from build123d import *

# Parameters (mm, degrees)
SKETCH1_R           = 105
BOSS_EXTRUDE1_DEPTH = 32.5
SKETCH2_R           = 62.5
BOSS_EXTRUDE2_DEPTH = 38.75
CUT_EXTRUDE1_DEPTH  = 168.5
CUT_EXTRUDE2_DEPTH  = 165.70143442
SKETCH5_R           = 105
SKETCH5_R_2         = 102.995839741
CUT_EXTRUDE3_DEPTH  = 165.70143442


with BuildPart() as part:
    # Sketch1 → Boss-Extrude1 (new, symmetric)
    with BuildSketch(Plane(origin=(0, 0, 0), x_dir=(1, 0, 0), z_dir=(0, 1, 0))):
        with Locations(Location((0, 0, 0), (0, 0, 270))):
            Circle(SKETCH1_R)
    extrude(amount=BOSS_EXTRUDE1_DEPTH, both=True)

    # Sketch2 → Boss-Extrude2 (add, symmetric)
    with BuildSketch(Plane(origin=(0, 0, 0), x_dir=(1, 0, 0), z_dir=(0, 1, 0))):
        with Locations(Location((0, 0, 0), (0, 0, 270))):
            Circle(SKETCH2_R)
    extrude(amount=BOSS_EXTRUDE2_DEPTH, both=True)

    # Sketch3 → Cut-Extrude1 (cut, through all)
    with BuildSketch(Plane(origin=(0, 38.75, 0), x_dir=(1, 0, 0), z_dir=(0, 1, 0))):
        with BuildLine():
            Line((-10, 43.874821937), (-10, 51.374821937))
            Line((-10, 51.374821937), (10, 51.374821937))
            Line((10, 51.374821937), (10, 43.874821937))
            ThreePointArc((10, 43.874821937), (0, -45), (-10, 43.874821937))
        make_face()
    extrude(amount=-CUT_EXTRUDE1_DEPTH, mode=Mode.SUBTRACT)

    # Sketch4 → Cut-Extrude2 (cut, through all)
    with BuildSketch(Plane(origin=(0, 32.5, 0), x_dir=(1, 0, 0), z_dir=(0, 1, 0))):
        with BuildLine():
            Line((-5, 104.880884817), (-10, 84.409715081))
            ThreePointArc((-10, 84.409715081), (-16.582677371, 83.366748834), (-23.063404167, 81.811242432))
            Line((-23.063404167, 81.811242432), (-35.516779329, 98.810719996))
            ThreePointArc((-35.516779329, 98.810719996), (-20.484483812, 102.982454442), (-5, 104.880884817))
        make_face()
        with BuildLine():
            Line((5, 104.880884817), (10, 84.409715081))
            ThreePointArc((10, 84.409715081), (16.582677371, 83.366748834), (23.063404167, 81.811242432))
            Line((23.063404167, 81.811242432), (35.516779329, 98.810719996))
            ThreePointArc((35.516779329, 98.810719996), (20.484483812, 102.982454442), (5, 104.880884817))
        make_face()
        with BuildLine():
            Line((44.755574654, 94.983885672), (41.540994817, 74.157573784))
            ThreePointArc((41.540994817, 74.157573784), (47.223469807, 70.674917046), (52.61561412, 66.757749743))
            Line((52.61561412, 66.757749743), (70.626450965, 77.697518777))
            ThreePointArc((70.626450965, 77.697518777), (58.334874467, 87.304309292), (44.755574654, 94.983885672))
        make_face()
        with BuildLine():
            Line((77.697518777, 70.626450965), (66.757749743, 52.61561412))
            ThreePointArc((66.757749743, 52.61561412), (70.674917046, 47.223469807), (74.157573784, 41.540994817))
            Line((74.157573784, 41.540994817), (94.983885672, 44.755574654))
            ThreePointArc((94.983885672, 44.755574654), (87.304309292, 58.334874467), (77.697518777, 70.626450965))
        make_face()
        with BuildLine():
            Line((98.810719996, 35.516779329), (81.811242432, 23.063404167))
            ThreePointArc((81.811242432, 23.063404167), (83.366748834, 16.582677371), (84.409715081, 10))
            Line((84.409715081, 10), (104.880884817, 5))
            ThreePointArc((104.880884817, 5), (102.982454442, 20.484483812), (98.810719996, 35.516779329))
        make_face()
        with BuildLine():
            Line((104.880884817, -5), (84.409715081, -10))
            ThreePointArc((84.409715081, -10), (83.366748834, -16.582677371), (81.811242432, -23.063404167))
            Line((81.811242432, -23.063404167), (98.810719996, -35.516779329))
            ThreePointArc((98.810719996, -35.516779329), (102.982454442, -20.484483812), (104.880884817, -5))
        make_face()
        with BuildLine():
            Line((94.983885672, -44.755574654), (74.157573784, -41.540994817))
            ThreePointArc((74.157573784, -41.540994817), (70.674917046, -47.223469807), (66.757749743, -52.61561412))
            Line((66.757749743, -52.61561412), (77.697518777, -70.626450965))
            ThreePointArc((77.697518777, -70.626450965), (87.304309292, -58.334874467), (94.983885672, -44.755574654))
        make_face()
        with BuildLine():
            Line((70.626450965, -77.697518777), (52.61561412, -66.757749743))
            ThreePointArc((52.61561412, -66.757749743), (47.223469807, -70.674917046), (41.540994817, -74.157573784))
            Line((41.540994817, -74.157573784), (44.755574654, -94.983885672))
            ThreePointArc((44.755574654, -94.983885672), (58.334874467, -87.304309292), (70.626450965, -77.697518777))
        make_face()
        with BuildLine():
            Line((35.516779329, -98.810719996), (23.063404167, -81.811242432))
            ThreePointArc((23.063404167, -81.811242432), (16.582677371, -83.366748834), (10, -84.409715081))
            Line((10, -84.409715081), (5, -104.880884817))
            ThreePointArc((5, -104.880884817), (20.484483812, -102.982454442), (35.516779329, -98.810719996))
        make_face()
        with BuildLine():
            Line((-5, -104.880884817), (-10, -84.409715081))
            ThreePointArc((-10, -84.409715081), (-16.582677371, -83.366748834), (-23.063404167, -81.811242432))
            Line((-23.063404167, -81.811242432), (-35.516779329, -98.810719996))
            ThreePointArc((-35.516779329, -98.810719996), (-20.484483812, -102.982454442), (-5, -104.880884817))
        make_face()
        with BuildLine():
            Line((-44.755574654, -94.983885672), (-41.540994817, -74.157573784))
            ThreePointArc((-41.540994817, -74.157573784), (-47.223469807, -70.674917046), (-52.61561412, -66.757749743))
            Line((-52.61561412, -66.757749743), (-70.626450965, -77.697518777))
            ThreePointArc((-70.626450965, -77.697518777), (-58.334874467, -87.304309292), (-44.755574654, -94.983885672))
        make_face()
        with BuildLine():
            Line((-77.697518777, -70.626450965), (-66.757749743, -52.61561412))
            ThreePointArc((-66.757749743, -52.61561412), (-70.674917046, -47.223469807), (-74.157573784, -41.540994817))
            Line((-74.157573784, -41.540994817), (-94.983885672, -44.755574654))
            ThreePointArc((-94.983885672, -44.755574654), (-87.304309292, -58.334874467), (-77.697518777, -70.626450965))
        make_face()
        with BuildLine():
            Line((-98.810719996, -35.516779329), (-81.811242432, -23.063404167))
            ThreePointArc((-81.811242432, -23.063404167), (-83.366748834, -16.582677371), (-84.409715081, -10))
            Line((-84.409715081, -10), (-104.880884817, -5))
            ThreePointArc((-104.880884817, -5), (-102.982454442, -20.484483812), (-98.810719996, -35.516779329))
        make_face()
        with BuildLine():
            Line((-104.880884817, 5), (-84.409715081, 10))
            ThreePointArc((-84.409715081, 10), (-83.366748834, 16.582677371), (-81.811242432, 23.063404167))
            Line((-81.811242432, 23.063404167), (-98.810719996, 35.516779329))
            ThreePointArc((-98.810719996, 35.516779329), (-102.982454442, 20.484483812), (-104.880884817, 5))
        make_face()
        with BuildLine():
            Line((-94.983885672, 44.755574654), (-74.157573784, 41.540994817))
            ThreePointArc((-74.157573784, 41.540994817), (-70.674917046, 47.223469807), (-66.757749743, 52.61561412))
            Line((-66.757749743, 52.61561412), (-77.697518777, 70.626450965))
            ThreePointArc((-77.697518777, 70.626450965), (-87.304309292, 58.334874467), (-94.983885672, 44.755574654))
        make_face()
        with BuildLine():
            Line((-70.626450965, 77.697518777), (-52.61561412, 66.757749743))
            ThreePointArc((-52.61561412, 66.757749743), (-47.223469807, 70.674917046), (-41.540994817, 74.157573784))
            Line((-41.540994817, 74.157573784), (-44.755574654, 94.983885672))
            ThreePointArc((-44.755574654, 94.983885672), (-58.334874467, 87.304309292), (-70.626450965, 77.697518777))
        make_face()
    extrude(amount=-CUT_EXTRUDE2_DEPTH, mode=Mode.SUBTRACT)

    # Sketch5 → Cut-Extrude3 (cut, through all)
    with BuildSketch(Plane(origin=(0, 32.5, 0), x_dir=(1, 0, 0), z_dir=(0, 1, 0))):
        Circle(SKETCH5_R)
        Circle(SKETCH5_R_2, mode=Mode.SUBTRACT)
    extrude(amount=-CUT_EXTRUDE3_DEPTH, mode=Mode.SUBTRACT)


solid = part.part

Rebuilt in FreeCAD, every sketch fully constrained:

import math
import FreeCAD as App
import Part
import Sketcher
from FreeCAD import Vector
Q = App.Units.Quantity

doc = App.newDocument("Part")
body = doc.addObject("PartDesign::Body", "Body")

# Sketch on XZ plane
sketch1 = body.newObject("Sketcher::SketchObject", "Sketch")
sketch1.AttachmentSupport = (doc.getObject("XZ_Plane"), [""])
sketch1.MapMode = "FlatFace"
sketch1.addGeometry(Part.Circle(Vector(0, 0, 0), Vector(0, 0, 1), 105), False)
sketch1.addConstraint(Sketcher.Constraint("Coincident", 0, 3, -1, 1))
sketch1.addConstraint(Sketcher.Constraint("Diameter", 0, Q("210 mm")))
pad1 = body.newObject("PartDesign::Pad", "Pad")
pad1.Profile = sketch1
pad1.Length = 65
pad1.Midplane = True

# Sketch on XZ plane
sketch2 = body.newObject("Sketcher::SketchObject", "Sketch001")
sketch2.AttachmentSupport = (doc.getObject("XZ_Plane"), [""])
sketch2.MapMode = "FlatFace"
sketch2.addGeometry(Part.Circle(Vector(0, 0, 0), Vector(0, 0, 1), 62), False)
sketch2.addConstraint(Sketcher.Constraint("Coincident", 0, 3, -1, 1))
sketch2.addConstraint(Sketcher.Constraint("Diameter", 0, Q("125 mm")))
pad2 = body.newObject("PartDesign::Pad", "Pad001")
pad2.Profile = sketch2
pad2.Length = 77.5
pad2.Midplane = True

# Sketch on XZ plane
sketch3 = body.newObject("Sketcher::SketchObject", "Sketch002")
sketch3.AttachmentSupport = (doc.getObject("XZ_Plane"), [""])
sketch3.MapMode = "FlatFace"
sketch3.AttachmentOffset = App.Placement(Vector(0, 0, -38.75), App.Rotation())
sketch3.addGeometry(Part.LineSegment(Vector(-10, -51, 0), Vector(-10, -44, 0)), False)
sketch3.addGeometry(Part.ArcOfCircle(Part.Circle(Vector(0, 0, 0), Vector(0, 0, 1), 45), math.radians(-77), math.radians(257)), False)
sketch3.addGeometry(Part.LineSegment(Vector(10, -44, 0), Vector(10, -51, 0)), False)
sketch3.addGeometry(Part.LineSegment(Vector(10, -51, 0), Vector(-10, -51, 0)), False)
sketch3.addConstraint(Sketcher.Constraint("Coincident", 0, 2, 1, 2))
sketch3.addConstraint(Sketcher.Constraint("Coincident", 1, 1, 2, 1))
sketch3.addConstraint(Sketcher.Constraint("Coincident", 2, 2, 3, 1))
sketch3.addConstraint(Sketcher.Constraint("Coincident", 3, 2, 0, 1))
sketch3.addConstraint(Sketcher.Constraint("Vertical", 0))
sketch3.addConstraint(Sketcher.Constraint("Vertical", 2))
sketch3.addConstraint(Sketcher.Constraint("Horizontal", 3))
sketch3.addConstraint(Sketcher.Constraint("Coincident", 1, 3, -1, 1))
sketch3.addConstraint(Sketcher.Constraint("Horizontal", 0, 2, 1, 1))
sketch3.addConstraint(Sketcher.Constraint("Radius", 1, Q("45 mm")))
sketch3.addConstraint(Sketcher.Constraint("DistanceX", 3, 2, 3, 1, Q("20 mm")))
sketch3.addConstraint(Sketcher.Constraint("DistanceY", 0, 1, 0, 2, Q("7.5 mm")))
pocket1 = body.newObject("PartDesign::Pocket", "Pocket")
pocket1.Profile = sketch3
pocket1.Type = "ThroughAll"
pocket1.Reversed = True

# Sketch on XZ plane
sketch4 = body.newObject("Sketcher::SketchObject", "Sketch003")
sketch4.AttachmentSupport = (doc.getObject("XZ_Plane"), [""])
sketch4.MapMode = "FlatFace"
sketch4.AttachmentOffset = App.Placement(Vector(0, 0, -32.5), App.Rotation())
sketch4.addGeometry(Part.LineSegment(Vector(-10, -84, 0), Vector(-5, -105, 0)), False)
sketch4.addGeometry(Part.ArcOfCircle(Part.Circle(Vector(0, 0, 0), Vector(0, 0, 1), 105), math.radians(-109.77), math.radians(-92.73)), False)
sketch4.addGeometry(Part.LineSegment(Vector(-36, -99, 0), Vector(-23, -82, 0)), False)
sketch4.addGeometry(Part.ArcOfCircle(Part.Circle(Vector(0, 0, 0), Vector(0, 0, 1), 85), math.radians(-105.74), math.radians(-96.76)), False)
sketch4.addGeometry(Part.LineSegment(Vector(5, -105, 0), Vector(10, -84, 0)), False)
sketch4.addGeometry(Part.ArcOfCircle(Part.Circle(Vector(0, 0, 0), Vector(0, 0, 1), 85), math.radians(-83.24), math.radians(-74.26)), False)
sketch4.addGeometry(Part.LineSegment(Vector(23, -82, 0), Vector(36, -99, 0)), False)
sketch4.addGeometry(Part.ArcOfCircle(Part.Circle(Vector(0, 0, 0), Vector(0, 0, 1), 105), math.radians(-87.27), math.radians(-70.23)), False)
sketch4.addGeometry(Part.LineSegment(Vector(45, -95, 0), Vector(42, -74, 0)), False)
sketch4.addGeometry(Part.ArcOfCircle(Part.Circle(Vector(0, 0, 0), Vector(0, 0, 1), 85), math.radians(-60.74), math.radians(-51.76)), False)
sketch4.addGeometry(Part.LineSegment(Vector(53, -67, 0), Vector(71, -78, 0)), False)
sketch4.addGeometry(Part.ArcOfCircle(Part.Circle(Vector(0, 0, 0), Vector(0, 0, 1), 105), math.radians(-64.77), math.radians(-47.73)), False)
sketch4.addGeometry(Part.LineSegment(Vector(78, -71, 0), Vector(67, -53, 0)), False)
sketch4.addGeometry(Part.ArcOfCircle(Part.Circle(Vector(0, 0, 0), Vector(0, 0, 1), 85), math.radians(-38.24), math.radians(-29.26)), False)
sketch4.addGeometry(Part.LineSegment(Vector(74, -42, 0), Vector(95, -45, 0)), False)
sketch4.addGeometry(Part.ArcOfCircle(Part.Circle(Vector(0, 0, 0), Vector(0, 0, 1), 105), math.radians(-42.27), math.radians(-25.23)), False)
sketch4.addGeometry(Part.LineSegment(Vector(99, -36, 0), Vector(82, -23, 0)), False)
sketch4.addGeometry(Part.ArcOfCircle(Part.Circle(Vector(0, 0, 0), Vector(0, 0, 1), 85), math.radians(-15.74), math.radians(-6.76)), False)
sketch4.addGeometry(Part.LineSegment(Vector(84, -10, 0), Vector(105, -5, 0)), False)
sketch4.addGeometry(Part.ArcOfCircle(Part.Circle(Vector(0, 0, 0), Vector(0, 0, 1), 105), math.radians(-19.77), math.radians(-2.73)), False)
sketch4.addGeometry(Part.LineSegment(Vector(105, 5, 0), Vector(84, 10, 0)), False)
sketch4.addGeometry(Part.ArcOfCircle(Part.Circle(Vector(0, 0, 0), Vector(0, 0, 1), 85), math.radians(6.76), math.radians(15.74)), False)
sketch4.addGeometry(Part.LineSegment(Vector(82, 23, 0), Vector(99, 36, 0)), False)
sketch4.addGeometry(Part.ArcOfCircle(Part.Circle(Vector(0, 0, 0), Vector(0, 0, 1), 105), math.radians(2.73), math.radians(19.77)), False)
sketch4.addGeometry(Part.LineSegment(Vector(95, 45, 0), Vector(74, 42, 0)), False)
sketch4.addGeometry(Part.ArcOfCircle(Part.Circle(Vector(0, 0, 0), Vector(0, 0, 1), 85), math.radians(29.26), math.radians(38.24)), False)
sketch4.addGeometry(Part.LineSegment(Vector(67, 53, 0), Vector(78, 71, 0)), False)
sketch4.addGeometry(Part.ArcOfCircle(Part.Circle(Vector(0, 0, 0), Vector(0, 0, 1), 105), math.radians(25.23), math.radians(42.27)), False)
sketch4.addGeometry(Part.LineSegment(Vector(71, 78, 0), Vector(53, 67, 0)), False)
sketch4.addGeometry(Part.ArcOfCircle(Part.Circle(Vector(0, 0, 0), Vector(0, 0, 1), 85), math.radians(51.76), math.radians(60.74)), False)
sketch4.addGeometry(Part.LineSegment(Vector(42, 74, 0), Vector(45, 95, 0)), False)
sketch4.addGeometry(Part.ArcOfCircle(Part.Circle(Vector(0, 0, 0), Vector(0, 0, 1), 105), math.radians(47.73), math.radians(64.77)), False)
sketch4.addGeometry(Part.LineSegment(Vector(36, 99, 0), Vector(23, 82, 0)), False)
sketch4.addGeometry(Part.ArcOfCircle(Part.Circle(Vector(0, 0, 0), Vector(0, 0, 1), 85), math.radians(74.26), math.radians(83.24)), False)
sketch4.addGeometry(Part.LineSegment(Vector(10, 84, 0), Vector(5, 105, 0)), False)
sketch4.addGeometry(Part.ArcOfCircle(Part.Circle(Vector(0, 0, 0), Vector(0, 0, 1), 105), math.radians(70.23), math.radians(87.27)), False)
sketch4.addGeometry(Part.LineSegment(Vector(-5, 105, 0), Vector(-10, 84, 0)), False)
sketch4.addGeometry(Part.ArcOfCircle(Part.Circle(Vector(0, 0, 0), Vector(0, 0, 1), 85), math.radians(96.76), math.radians(105.74)), False)
sketch4.addGeometry(Part.LineSegment(Vector(-23, 82, 0), Vector(-36, 99, 0)), False)
sketch4.addGeometry(Part.ArcOfCircle(Part.Circle(Vector(0, 0, 0), Vector(0, 0, 1), 105), math.radians(92.73), math.radians(109.77)), False)
sketch4.addGeometry(Part.LineSegment(Vector(-45, 95, 0), Vector(-42, 74, 0)), False)
sketch4.addGeometry(Part.ArcOfCircle(Part.Circle(Vector(0, 0, 0), Vector(0, 0, 1), 85), math.radians(119.26), math.radians(128.24)), False)
sketch4.addGeometry(Part.LineSegment(Vector(-53, 67, 0), Vector(-71, 78, 0)), False)
sketch4.addGeometry(Part.ArcOfCircle(Part.Circle(Vector(0, 0, 0), Vector(0, 0, 1), 105), math.radians(115.23), math.radians(132.27)), False)
sketch4.addGeometry(Part.LineSegment(Vector(-78, 71, 0), Vector(-67, 53, 0)), False)
sketch4.addGeometry(Part.ArcOfCircle(Part.Circle(Vector(0, 0, 0), Vector(0, 0, 1), 85), math.radians(141.76), math.radians(150.74)), False)
sketch4.addGeometry(Part.LineSegment(Vector(-74, 42, 0), Vector(-95, 45, 0)), False)
sketch4.addGeometry(Part.ArcOfCircle(Part.Circle(Vector(0, 0, 0), Vector(0, 0, 1), 105), math.radians(137.73), math.radians(154.77)), False)
sketch4.addGeometry(Part.LineSegment(Vector(-99, 36, 0), Vector(-82, 23, 0)), False)
sketch4.addGeometry(Part.ArcOfCircle(Part.Circle(Vector(0, 0, 0), Vector(0, 0, 1), 85), math.radians(164.26), math.radians(173.24)), False)
sketch4.addGeometry(Part.LineSegment(Vector(-84, 10, 0), Vector(-105, 5, 0)), False)
sketch4.addGeometry(Part.ArcOfCircle(Part.Circle(Vector(0, 0, 0), Vector(0, 0, 1), 105), math.radians(160.23), math.radians(177.27)), False)
sketch4.addGeometry(Part.LineSegment(Vector(-105, -5, 0), Vector(-84, -10, 0)), False)
sketch4.addGeometry(Part.ArcOfCircle(Part.Circle(Vector(0, 0, 0), Vector(0, 0, 1), 85), math.radians(-173.24), math.radians(-164.26)), False)
sketch4.addGeometry(Part.LineSegment(Vector(-82, -23, 0), Vector(-99, -36, 0)), False)
sketch4.addGeometry(Part.ArcOfCircle(Part.Circle(Vector(0, 0, 0), Vector(0, 0, 1), 105), math.radians(-177.27), math.radians(-160.23)), False)
sketch4.addGeometry(Part.LineSegment(Vector(-95, -45, 0), Vector(-74, -42, 0)), False)
sketch4.addGeometry(Part.ArcOfCircle(Part.Circle(Vector(0, 0, 0), Vector(0, 0, 1), 85), math.radians(-150.74), math.radians(-141.76)), False)
sketch4.addGeometry(Part.LineSegment(Vector(-67, -53, 0), Vector(-78, -71, 0)), False)
sketch4.addGeometry(Part.ArcOfCircle(Part.Circle(Vector(0, 0, 0), Vector(0, 0, 1), 105), math.radians(-154.77), math.radians(-137.73)), False)
sketch4.addGeometry(Part.LineSegment(Vector(-71, -78, 0), Vector(-53, -67, 0)), False)
sketch4.addGeometry(Part.ArcOfCircle(Part.Circle(Vector(0, 0, 0), Vector(0, 0, 1), 85), math.radians(-128.24), math.radians(-119.26)), False)
sketch4.addGeometry(Part.LineSegment(Vector(-42, -74, 0), Vector(-45, -95, 0)), False)
sketch4.addGeometry(Part.ArcOfCircle(Part.Circle(Vector(0, 0, 0), Vector(0, 0, 1), 105), math.radians(-132.27), math.radians(-115.23)), False)
sketch4.addConstraint(Sketcher.Constraint("Coincident", 0, 2, 1, 2))
sketch4.addConstraint(Sketcher.Constraint("Coincident", 1, 1, 2, 1))
sketch4.addConstraint(Sketcher.Constraint("Coincident", 2, 2, 3, 1))
sketch4.addConstraint(Sketcher.Constraint("Coincident", 3, 2, 0, 1))
sketch4.addConstraint(Sketcher.Constraint("Coincident", 4, 2, 5, 1))
sketch4.addConstraint(Sketcher.Constraint("Coincident", 5, 2, 6, 1))
sketch4.addConstraint(Sketcher.Constraint("Coincident", 6, 2, 7, 2))
sketch4.addConstraint(Sketcher.Constraint("Coincident", 7, 1, 4, 1))
sketch4.addConstraint(Sketcher.Constraint("Coincident", 8, 2, 9, 1))
sketch4.addConstraint(Sketcher.Constraint("Coincident", 9, 2, 10, 1))
sketch4.addConstraint(Sketcher.Constraint("Coincident", 10, 2, 11, 2))
sketch4.addConstraint(Sketcher.Constraint("Coincident", 11, 1, 8, 1))
sketch4.addConstraint(Sketcher.Constraint("Coincident", 12, 2, 13, 1))
sketch4.addConstraint(Sketcher.Constraint("Coincident", 13, 2, 14, 1))
sketch4.addConstraint(Sketcher.Constraint("Coincident", 14, 2, 15, 2))
sketch4.addConstraint(Sketcher.Constraint("Coincident", 15, 1, 12, 1))
sketch4.addConstraint(Sketcher.Constraint("Coincident", 16, 2, 17, 1))
sketch4.addConstraint(Sketcher.Constraint("Coincident", 17, 2, 18, 1))
sketch4.addConstraint(Sketcher.Constraint("Coincident", 18, 2, 19, 2))
sketch4.addConstraint(Sketcher.Constraint("Coincident", 19, 1, 16, 1))
sketch4.addConstraint(Sketcher.Constraint("Coincident", 20, 2, 21, 1))
sketch4.addConstraint(Sketcher.Constraint("Coincident", 21, 2, 22, 1))
sketch4.addConstraint(Sketcher.Constraint("Coincident", 22, 2, 23, 2))
sketch4.addConstraint(Sketcher.Constraint("Coincident", 23, 1, 20, 1))
sketch4.addConstraint(Sketcher.Constraint("Coincident", 24, 2, 25, 1))
sketch4.addConstraint(Sketcher.Constraint("Coincident", 25, 2, 26, 1))
sketch4.addConstraint(Sketcher.Constraint("Coincident", 26, 2, 27, 2))
sketch4.addConstraint(Sketcher.Constraint("Coincident", 27, 1, 24, 1))
sketch4.addConstraint(Sketcher.Constraint("Coincident", 28, 2, 29, 1))
sketch4.addConstraint(Sketcher.Constraint("Coincident", 29, 2, 30, 1))
sketch4.addConstraint(Sketcher.Constraint("Coincident", 30, 2, 31, 2))
sketch4.addConstraint(Sketcher.Constraint("Coincident", 31, 1, 28, 1))
sketch4.addConstraint(Sketcher.Constraint("Coincident", 32, 2, 33, 1))
sketch4.addConstraint(Sketcher.Constraint("Coincident", 33, 2, 34, 1))
sketch4.addConstraint(Sketcher.Constraint("Coincident", 34, 2, 35, 2))
sketch4.addConstraint(Sketcher.Constraint("Coincident", 35, 1, 32, 1))
sketch4.addConstraint(Sketcher.Constraint("Coincident", 36, 2, 37, 1))
sketch4.addConstraint(Sketcher.Constraint("Coincident", 37, 2, 38, 1))
sketch4.addConstraint(Sketcher.Constraint("Coincident", 38, 2, 39, 2))
sketch4.addConstraint(Sketcher.Constraint("Coincident", 39, 1, 36, 1))
sketch4.addConstraint(Sketcher.Constraint("Coincident", 40, 2, 41, 1))
sketch4.addConstraint(Sketcher.Constraint("Coincident", 41, 2, 42, 1))
sketch4.addConstraint(Sketcher.Constraint("Coincident", 42, 2, 43, 2))
sketch4.addConstraint(Sketcher.Constraint("Coincident", 43, 1, 40, 1))
sketch4.addConstraint(Sketcher.Constraint("Coincident", 44, 2, 45, 1))
sketch4.addConstraint(Sketcher.Constraint("Coincident", 45, 2, 46, 1))
sketch4.addConstraint(Sketcher.Constraint("Coincident", 46, 2, 47, 2))
sketch4.addConstraint(Sketcher.Constraint("Coincident", 47, 1, 44, 1))
sketch4.addConstraint(Sketcher.Constraint("Coincident", 48, 2, 49, 1))
sketch4.addConstraint(Sketcher.Constraint("Coincident", 49, 2, 50, 1))
sketch4.addConstraint(Sketcher.Constraint("Coincident", 50, 2, 51, 2))
sketch4.addConstraint(Sketcher.Constraint("Coincident", 51, 1, 48, 1))
sketch4.addConstraint(Sketcher.Constraint("Coincident", 52, 2, 53, 1))
sketch4.addConstraint(Sketcher.Constraint("Coincident", 53, 2, 54, 1))
sketch4.addConstraint(Sketcher.Constraint("Coincident", 54, 2, 55, 2))
sketch4.addConstraint(Sketcher.Constraint("Coincident", 55, 1, 52, 1))
sketch4.addConstraint(Sketcher.Constraint("Coincident", 56, 2, 57, 1))
sketch4.addConstraint(Sketcher.Constraint("Coincident", 57, 2, 58, 1))
sketch4.addConstraint(Sketcher.Constraint("Coincident", 58, 2, 59, 2))
sketch4.addConstraint(Sketcher.Constraint("Coincident", 59, 1, 56, 1))
sketch4.addConstraint(Sketcher.Constraint("Coincident", 60, 2, 61, 1))
sketch4.addConstraint(Sketcher.Constraint("Coincident", 61, 2, 62, 1))
sketch4.addConstraint(Sketcher.Constraint("Coincident", 62, 2, 63, 2))
sketch4.addConstraint(Sketcher.Constraint("Coincident", 63, 1, 60, 1))
sketch4.addConstraint(Sketcher.Constraint("Coincident", 1, 3, -1, 1))
sketch4.addConstraint(Sketcher.Constraint("Coincident", 3, 3, -1, 1))
sketch4.addConstraint(Sketcher.Constraint("Coincident", 5, 3, -1, 1))
sketch4.addConstraint(Sketcher.Constraint("Coincident", 7, 3, -1, 1))
sketch4.addConstraint(Sketcher.Constraint("Coincident", 9, 3, -1, 1))
sketch4.addConstraint(Sketcher.Constraint("Coincident", 11, 3, -1, 1))
sketch4.addConstraint(Sketcher.Constraint("Coincident", 13, 3, -1, 1))
sketch4.addConstraint(Sketcher.Constraint("Coincident", 15, 3, -1, 1))
sketch4.addConstraint(Sketcher.Constraint("Coincident", 17, 3, -1, 1))
sketch4.addConstraint(Sketcher.Constraint("Coincident", 19, 3, -1, 1))
sketch4.addConstraint(Sketcher.Constraint("Coincident", 21, 3, -1, 1))
sketch4.addConstraint(Sketcher.Constraint("Coincident", 23, 3, -1, 1))
sketch4.addConstraint(Sketcher.Constraint("Coincident", 25, 3, -1, 1))
sketch4.addConstraint(Sketcher.Constraint("Coincident", 27, 3, -1, 1))
sketch4.addConstraint(Sketcher.Constraint("Coincident", 29, 3, -1, 1))
sketch4.addConstraint(Sketcher.Constraint("Coincident", 31, 3, -1, 1))
sketch4.addConstraint(Sketcher.Constraint("Coincident", 33, 3, -1, 1))
sketch4.addConstraint(Sketcher.Constraint("Coincident", 35, 3, -1, 1))
sketch4.addConstraint(Sketcher.Constraint("Coincident", 37, 3, -1, 1))
sketch4.addConstraint(Sketcher.Constraint("Coincident", 39, 3, -1, 1))
sketch4.addConstraint(Sketcher.Constraint("Coincident", 41, 3, -1, 1))
sketch4.addConstraint(Sketcher.Constraint("Coincident", 43, 3, -1, 1))
sketch4.addConstraint(Sketcher.Constraint("Coincident", 45, 3, -1, 1))
sketch4.addConstraint(Sketcher.Constraint("Coincident", 47, 3, -1, 1))
sketch4.addConstraint(Sketcher.Constraint("Coincident", 49, 3, -1, 1))
sketch4.addConstraint(Sketcher.Constraint("Coincident", 51, 3, -1, 1))
sketch4.addConstraint(Sketcher.Constraint("Coincident", 53, 3, -1, 1))
sketch4.addConstraint(Sketcher.Constraint("Coincident", 55, 3, -1, 1))
sketch4.addConstraint(Sketcher.Constraint("Coincident", 57, 3, -1, 1))
sketch4.addConstraint(Sketcher.Constraint("Coincident", 59, 3, -1, 1))
sketch4.addConstraint(Sketcher.Constraint("Coincident", 61, 3, -1, 1))
sketch4.addConstraint(Sketcher.Constraint("Coincident", 63, 3, -1, 1))
sketch4.addConstraint(Sketcher.Constraint("Equal", 3, 5))
sketch4.addConstraint(Sketcher.Constraint("Equal", 1, 7))
sketch4.addConstraint(Sketcher.Constraint("Equal", 5, 9))
sketch4.addConstraint(Sketcher.Constraint("Equal", 7, 11))
sketch4.addConstraint(Sketcher.Constraint("Equal", 9, 13))
sketch4.addConstraint(Sketcher.Constraint("Equal", 11, 15))
sketch4.addConstraint(Sketcher.Constraint("Equal", 13, 17))
sketch4.addConstraint(Sketcher.Constraint("Equal", 15, 19))
sketch4.addConstraint(Sketcher.Constraint("Equal", 17, 21))
sketch4.addConstraint(Sketcher.Constraint("Equal", 19, 23))
sketch4.addConstraint(Sketcher.Constraint("Equal", 21, 25))
sketch4.addConstraint(Sketcher.Constraint("Equal", 23, 27))
sketch4.addConstraint(Sketcher.Constraint("Equal", 25, 29))
sketch4.addConstraint(Sketcher.Constraint("Equal", 27, 31))
sketch4.addConstraint(Sketcher.Constraint("Equal", 29, 33))
sketch4.addConstraint(Sketcher.Constraint("Equal", 31, 35))
sketch4.addConstraint(Sketcher.Constraint("Equal", 33, 37))
sketch4.addConstraint(Sketcher.Constraint("Equal", 35, 39))
sketch4.addConstraint(Sketcher.Constraint("Equal", 37, 41))
sketch4.addConstraint(Sketcher.Constraint("Equal", 39, 43))
sketch4.addConstraint(Sketcher.Constraint("Equal", 41, 45))
sketch4.addConstraint(Sketcher.Constraint("Equal", 43, 47))
sketch4.addConstraint(Sketcher.Constraint("Equal", 45, 49))
sketch4.addConstraint(Sketcher.Constraint("Equal", 47, 51))
sketch4.addConstraint(Sketcher.Constraint("Equal", 49, 53))
sketch4.addConstraint(Sketcher.Constraint("Equal", 51, 55))
sketch4.addConstraint(Sketcher.Constraint("Equal", 53, 57))
sketch4.addConstraint(Sketcher.Constraint("Equal", 55, 59))
sketch4.addConstraint(Sketcher.Constraint("Equal", 57, 61))
sketch4.addConstraint(Sketcher.Constraint("Equal", 59, 63))
sketch4.addConstraint(Sketcher.Constraint("Perpendicular", 2, 16))
sketch4.addConstraint(Sketcher.Constraint("Perpendicular", 0, 18))
sketch4.addConstraint(Sketcher.Constraint("Perpendicular", 4, 20))
sketch4.addConstraint(Sketcher.Constraint("Perpendicular", 6, 22))
sketch4.addConstraint(Sketcher.Constraint("Perpendicular", 8, 24))
sketch4.addConstraint(Sketcher.Constraint("Perpendicular", 10, 26))
sketch4.addConstraint(Sketcher.Constraint("Perpendicular", 12, 28))
sketch4.addConstraint(Sketcher.Constraint("Perpendicular", 14, 30))
sketch4.addConstraint(Sketcher.Constraint("Perpendicular", 16, 32))
sketch4.addConstraint(Sketcher.Constraint("Perpendicular", 18, 34))
sketch4.addConstraint(Sketcher.Constraint("Perpendicular", 20, 36))
sketch4.addConstraint(Sketcher.Constraint("Perpendicular", 22, 38))
sketch4.addConstraint(Sketcher.Constraint("Perpendicular", 24, 40))
sketch4.addConstraint(Sketcher.Constraint("Perpendicular", 26, 42))
sketch4.addConstraint(Sketcher.Constraint("Perpendicular", 28, 44))
sketch4.addConstraint(Sketcher.Constraint("Perpendicular", 30, 46))
sketch4.addConstraint(Sketcher.Constraint("Perpendicular", 32, 48))
sketch4.addConstraint(Sketcher.Constraint("Perpendicular", 34, 50))
sketch4.addConstraint(Sketcher.Constraint("Perpendicular", 36, 52))
sketch4.addConstraint(Sketcher.Constraint("Perpendicular", 38, 54))
sketch4.addConstraint(Sketcher.Constraint("Perpendicular", 40, 56))
sketch4.addConstraint(Sketcher.Constraint("Perpendicular", 42, 58))
sketch4.addConstraint(Sketcher.Constraint("Perpendicular", 44, 60))
sketch4.addConstraint(Sketcher.Constraint("Perpendicular", 46, 62))
sketch4.addConstraint(Sketcher.Constraint("Horizontal", 3, 2, 4, 2))
sketch4.addConstraint(Sketcher.Constraint("Horizontal", 2, 2, 5, 2))
sketch4.addConstraint(Sketcher.Constraint("Horizontal", 1, 1, 6, 2))
sketch4.addConstraint(Sketcher.Constraint("Horizontal", 0, 2, 7, 1))
sketch4.addConstraint(Sketcher.Constraint("Horizontal", 33, 2, 36, 2))
sketch4.addConstraint(Sketcher.Constraint("Horizontal", 32, 2, 37, 2))
sketch4.addConstraint(Sketcher.Constraint("Horizontal", 29, 2, 40, 2))
sketch4.addConstraint(Sketcher.Constraint("Horizontal", 28, 2, 41, 2))
sketch4.addConstraint(Sketcher.Constraint("Horizontal", 31, 1, 42, 2))
sketch4.addConstraint(Sketcher.Constraint("Horizontal", 30, 2, 43, 1))
sketch4.addConstraint(Sketcher.Constraint("Horizontal", 25, 2, 44, 2))
sketch4.addConstraint(Sketcher.Constraint("Horizontal", 24, 2, 45, 2))
sketch4.addConstraint(Sketcher.Constraint("Horizontal", 21, 2, 48, 2))
sketch4.addConstraint(Sketcher.Constraint("Horizontal", 20, 2, 49, 2))
sketch4.addConstraint(Sketcher.Constraint("Horizontal", 17, 2, 52, 2))
sketch4.addConstraint(Sketcher.Constraint("Horizontal", 16, 2, 53, 2))
sketch4.addConstraint(Sketcher.Constraint("Horizontal", 13, 2, 56, 2))
sketch4.addConstraint(Sketcher.Constraint("Horizontal", 12, 2, 57, 2))
sketch4.addConstraint(Sketcher.Constraint("Horizontal", 9, 2, 60, 2))
sketch4.addConstraint(Sketcher.Constraint("Horizontal", 8, 2, 61, 2))
sketch4.addConstraint(Sketcher.Constraint("Vertical", 17, 2, 20, 2))
sketch4.addConstraint(Sketcher.Constraint("Vertical", 16, 2, 21, 2))
sketch4.addConstraint(Sketcher.Constraint("Vertical", 13, 2, 24, 2))
sketch4.addConstraint(Sketcher.Constraint("Vertical", 12, 2, 25, 2))
sketch4.addConstraint(Sketcher.Constraint("Vertical", 9, 2, 28, 2))
sketch4.addConstraint(Sketcher.Constraint("Vertical", 8, 2, 29, 2))
sketch4.addConstraint(Sketcher.Constraint("Vertical", 5, 2, 32, 2))
sketch4.addConstraint(Sketcher.Constraint("Vertical", 4, 2, 33, 2))
sketch4.addConstraint(Sketcher.Constraint("Equal", 0, 2))
sketch4.addConstraint(Sketcher.Constraint("Equal", 6, 8))
sketch4.addConstraint(Sketcher.Constraint("Equal", 8, 10))
sketch4.addConstraint(Sketcher.Constraint("Equal", 10, 12))
sketch4.addConstraint(Sketcher.Constraint("Equal", 12, 14))
sketch4.addConstraint(Sketcher.Constraint("Equal", 14, 16))
sketch4.addConstraint(Sketcher.Constraint("Equal", 16, 18))
sketch4.addConstraint(Sketcher.Constraint("Radius", 1, Q("105 mm")))
sketch4.addConstraint(Sketcher.Constraint("Radius", 3, Q("85 mm")))
sketch4.addConstraint(Sketcher.Constraint("DistanceX", 0, 2, -1, 1, Q("5 mm")))
sketch4.addConstraint(Sketcher.Constraint("DistanceX", 3, 2, -1, 1, Q("10 mm")))
sketch4.addConstraint(Sketcher.Constraint("DistanceX", 1, 1, -1, 1, Q("35.516779 mm")))
sketch4.addConstraint(Sketcher.Constraint("DistanceY", 9, 2, -1, 1, Q("66.75775 mm")))
sketch4.addConstraint(Sketcher.Constraint("DistanceX", -1, 1, 8, 2, Q("41.540995 mm")))
pocket2 = body.newObject("PartDesign::Pocket", "Pocket001")
pocket2.Profile = sketch4
pocket2.Type = "ThroughAll"
pocket2.Reversed = True

# Sketch on XZ plane
sketch5 = body.newObject("Sketcher::SketchObject", "Sketch004")
sketch5.AttachmentSupport = (doc.getObject("XZ_Plane"), [""])
sketch5.MapMode = "FlatFace"
sketch5.AttachmentOffset = App.Placement(Vector(0, 0, -32.5), App.Rotation())
sketch5.addGeometry(Part.Circle(Vector(0, 0, 0), Vector(0, 0, 1), 105), False)
sketch5.addGeometry(Part.Circle(Vector(0, 0, 0), Vector(0, 0, 1), 103), False)
sketch5.addConstraint(Sketcher.Constraint("Coincident", 0, 3, -1, 1))
sketch5.addConstraint(Sketcher.Constraint("Coincident", 1, 3, -1, 1))
sketch5.addConstraint(Sketcher.Constraint("Diameter", 0, Q("210 mm")))
sketch5.addConstraint(Sketcher.Constraint("Diameter", 1, Q("205.991679 mm")))
pocket3 = body.newObject("PartDesign::Pocket", "Pocket002")
pocket3.Profile = sketch5
pocket3.Type = "ThroughAll"
pocket3.Reversed = True

doc.recompute()
